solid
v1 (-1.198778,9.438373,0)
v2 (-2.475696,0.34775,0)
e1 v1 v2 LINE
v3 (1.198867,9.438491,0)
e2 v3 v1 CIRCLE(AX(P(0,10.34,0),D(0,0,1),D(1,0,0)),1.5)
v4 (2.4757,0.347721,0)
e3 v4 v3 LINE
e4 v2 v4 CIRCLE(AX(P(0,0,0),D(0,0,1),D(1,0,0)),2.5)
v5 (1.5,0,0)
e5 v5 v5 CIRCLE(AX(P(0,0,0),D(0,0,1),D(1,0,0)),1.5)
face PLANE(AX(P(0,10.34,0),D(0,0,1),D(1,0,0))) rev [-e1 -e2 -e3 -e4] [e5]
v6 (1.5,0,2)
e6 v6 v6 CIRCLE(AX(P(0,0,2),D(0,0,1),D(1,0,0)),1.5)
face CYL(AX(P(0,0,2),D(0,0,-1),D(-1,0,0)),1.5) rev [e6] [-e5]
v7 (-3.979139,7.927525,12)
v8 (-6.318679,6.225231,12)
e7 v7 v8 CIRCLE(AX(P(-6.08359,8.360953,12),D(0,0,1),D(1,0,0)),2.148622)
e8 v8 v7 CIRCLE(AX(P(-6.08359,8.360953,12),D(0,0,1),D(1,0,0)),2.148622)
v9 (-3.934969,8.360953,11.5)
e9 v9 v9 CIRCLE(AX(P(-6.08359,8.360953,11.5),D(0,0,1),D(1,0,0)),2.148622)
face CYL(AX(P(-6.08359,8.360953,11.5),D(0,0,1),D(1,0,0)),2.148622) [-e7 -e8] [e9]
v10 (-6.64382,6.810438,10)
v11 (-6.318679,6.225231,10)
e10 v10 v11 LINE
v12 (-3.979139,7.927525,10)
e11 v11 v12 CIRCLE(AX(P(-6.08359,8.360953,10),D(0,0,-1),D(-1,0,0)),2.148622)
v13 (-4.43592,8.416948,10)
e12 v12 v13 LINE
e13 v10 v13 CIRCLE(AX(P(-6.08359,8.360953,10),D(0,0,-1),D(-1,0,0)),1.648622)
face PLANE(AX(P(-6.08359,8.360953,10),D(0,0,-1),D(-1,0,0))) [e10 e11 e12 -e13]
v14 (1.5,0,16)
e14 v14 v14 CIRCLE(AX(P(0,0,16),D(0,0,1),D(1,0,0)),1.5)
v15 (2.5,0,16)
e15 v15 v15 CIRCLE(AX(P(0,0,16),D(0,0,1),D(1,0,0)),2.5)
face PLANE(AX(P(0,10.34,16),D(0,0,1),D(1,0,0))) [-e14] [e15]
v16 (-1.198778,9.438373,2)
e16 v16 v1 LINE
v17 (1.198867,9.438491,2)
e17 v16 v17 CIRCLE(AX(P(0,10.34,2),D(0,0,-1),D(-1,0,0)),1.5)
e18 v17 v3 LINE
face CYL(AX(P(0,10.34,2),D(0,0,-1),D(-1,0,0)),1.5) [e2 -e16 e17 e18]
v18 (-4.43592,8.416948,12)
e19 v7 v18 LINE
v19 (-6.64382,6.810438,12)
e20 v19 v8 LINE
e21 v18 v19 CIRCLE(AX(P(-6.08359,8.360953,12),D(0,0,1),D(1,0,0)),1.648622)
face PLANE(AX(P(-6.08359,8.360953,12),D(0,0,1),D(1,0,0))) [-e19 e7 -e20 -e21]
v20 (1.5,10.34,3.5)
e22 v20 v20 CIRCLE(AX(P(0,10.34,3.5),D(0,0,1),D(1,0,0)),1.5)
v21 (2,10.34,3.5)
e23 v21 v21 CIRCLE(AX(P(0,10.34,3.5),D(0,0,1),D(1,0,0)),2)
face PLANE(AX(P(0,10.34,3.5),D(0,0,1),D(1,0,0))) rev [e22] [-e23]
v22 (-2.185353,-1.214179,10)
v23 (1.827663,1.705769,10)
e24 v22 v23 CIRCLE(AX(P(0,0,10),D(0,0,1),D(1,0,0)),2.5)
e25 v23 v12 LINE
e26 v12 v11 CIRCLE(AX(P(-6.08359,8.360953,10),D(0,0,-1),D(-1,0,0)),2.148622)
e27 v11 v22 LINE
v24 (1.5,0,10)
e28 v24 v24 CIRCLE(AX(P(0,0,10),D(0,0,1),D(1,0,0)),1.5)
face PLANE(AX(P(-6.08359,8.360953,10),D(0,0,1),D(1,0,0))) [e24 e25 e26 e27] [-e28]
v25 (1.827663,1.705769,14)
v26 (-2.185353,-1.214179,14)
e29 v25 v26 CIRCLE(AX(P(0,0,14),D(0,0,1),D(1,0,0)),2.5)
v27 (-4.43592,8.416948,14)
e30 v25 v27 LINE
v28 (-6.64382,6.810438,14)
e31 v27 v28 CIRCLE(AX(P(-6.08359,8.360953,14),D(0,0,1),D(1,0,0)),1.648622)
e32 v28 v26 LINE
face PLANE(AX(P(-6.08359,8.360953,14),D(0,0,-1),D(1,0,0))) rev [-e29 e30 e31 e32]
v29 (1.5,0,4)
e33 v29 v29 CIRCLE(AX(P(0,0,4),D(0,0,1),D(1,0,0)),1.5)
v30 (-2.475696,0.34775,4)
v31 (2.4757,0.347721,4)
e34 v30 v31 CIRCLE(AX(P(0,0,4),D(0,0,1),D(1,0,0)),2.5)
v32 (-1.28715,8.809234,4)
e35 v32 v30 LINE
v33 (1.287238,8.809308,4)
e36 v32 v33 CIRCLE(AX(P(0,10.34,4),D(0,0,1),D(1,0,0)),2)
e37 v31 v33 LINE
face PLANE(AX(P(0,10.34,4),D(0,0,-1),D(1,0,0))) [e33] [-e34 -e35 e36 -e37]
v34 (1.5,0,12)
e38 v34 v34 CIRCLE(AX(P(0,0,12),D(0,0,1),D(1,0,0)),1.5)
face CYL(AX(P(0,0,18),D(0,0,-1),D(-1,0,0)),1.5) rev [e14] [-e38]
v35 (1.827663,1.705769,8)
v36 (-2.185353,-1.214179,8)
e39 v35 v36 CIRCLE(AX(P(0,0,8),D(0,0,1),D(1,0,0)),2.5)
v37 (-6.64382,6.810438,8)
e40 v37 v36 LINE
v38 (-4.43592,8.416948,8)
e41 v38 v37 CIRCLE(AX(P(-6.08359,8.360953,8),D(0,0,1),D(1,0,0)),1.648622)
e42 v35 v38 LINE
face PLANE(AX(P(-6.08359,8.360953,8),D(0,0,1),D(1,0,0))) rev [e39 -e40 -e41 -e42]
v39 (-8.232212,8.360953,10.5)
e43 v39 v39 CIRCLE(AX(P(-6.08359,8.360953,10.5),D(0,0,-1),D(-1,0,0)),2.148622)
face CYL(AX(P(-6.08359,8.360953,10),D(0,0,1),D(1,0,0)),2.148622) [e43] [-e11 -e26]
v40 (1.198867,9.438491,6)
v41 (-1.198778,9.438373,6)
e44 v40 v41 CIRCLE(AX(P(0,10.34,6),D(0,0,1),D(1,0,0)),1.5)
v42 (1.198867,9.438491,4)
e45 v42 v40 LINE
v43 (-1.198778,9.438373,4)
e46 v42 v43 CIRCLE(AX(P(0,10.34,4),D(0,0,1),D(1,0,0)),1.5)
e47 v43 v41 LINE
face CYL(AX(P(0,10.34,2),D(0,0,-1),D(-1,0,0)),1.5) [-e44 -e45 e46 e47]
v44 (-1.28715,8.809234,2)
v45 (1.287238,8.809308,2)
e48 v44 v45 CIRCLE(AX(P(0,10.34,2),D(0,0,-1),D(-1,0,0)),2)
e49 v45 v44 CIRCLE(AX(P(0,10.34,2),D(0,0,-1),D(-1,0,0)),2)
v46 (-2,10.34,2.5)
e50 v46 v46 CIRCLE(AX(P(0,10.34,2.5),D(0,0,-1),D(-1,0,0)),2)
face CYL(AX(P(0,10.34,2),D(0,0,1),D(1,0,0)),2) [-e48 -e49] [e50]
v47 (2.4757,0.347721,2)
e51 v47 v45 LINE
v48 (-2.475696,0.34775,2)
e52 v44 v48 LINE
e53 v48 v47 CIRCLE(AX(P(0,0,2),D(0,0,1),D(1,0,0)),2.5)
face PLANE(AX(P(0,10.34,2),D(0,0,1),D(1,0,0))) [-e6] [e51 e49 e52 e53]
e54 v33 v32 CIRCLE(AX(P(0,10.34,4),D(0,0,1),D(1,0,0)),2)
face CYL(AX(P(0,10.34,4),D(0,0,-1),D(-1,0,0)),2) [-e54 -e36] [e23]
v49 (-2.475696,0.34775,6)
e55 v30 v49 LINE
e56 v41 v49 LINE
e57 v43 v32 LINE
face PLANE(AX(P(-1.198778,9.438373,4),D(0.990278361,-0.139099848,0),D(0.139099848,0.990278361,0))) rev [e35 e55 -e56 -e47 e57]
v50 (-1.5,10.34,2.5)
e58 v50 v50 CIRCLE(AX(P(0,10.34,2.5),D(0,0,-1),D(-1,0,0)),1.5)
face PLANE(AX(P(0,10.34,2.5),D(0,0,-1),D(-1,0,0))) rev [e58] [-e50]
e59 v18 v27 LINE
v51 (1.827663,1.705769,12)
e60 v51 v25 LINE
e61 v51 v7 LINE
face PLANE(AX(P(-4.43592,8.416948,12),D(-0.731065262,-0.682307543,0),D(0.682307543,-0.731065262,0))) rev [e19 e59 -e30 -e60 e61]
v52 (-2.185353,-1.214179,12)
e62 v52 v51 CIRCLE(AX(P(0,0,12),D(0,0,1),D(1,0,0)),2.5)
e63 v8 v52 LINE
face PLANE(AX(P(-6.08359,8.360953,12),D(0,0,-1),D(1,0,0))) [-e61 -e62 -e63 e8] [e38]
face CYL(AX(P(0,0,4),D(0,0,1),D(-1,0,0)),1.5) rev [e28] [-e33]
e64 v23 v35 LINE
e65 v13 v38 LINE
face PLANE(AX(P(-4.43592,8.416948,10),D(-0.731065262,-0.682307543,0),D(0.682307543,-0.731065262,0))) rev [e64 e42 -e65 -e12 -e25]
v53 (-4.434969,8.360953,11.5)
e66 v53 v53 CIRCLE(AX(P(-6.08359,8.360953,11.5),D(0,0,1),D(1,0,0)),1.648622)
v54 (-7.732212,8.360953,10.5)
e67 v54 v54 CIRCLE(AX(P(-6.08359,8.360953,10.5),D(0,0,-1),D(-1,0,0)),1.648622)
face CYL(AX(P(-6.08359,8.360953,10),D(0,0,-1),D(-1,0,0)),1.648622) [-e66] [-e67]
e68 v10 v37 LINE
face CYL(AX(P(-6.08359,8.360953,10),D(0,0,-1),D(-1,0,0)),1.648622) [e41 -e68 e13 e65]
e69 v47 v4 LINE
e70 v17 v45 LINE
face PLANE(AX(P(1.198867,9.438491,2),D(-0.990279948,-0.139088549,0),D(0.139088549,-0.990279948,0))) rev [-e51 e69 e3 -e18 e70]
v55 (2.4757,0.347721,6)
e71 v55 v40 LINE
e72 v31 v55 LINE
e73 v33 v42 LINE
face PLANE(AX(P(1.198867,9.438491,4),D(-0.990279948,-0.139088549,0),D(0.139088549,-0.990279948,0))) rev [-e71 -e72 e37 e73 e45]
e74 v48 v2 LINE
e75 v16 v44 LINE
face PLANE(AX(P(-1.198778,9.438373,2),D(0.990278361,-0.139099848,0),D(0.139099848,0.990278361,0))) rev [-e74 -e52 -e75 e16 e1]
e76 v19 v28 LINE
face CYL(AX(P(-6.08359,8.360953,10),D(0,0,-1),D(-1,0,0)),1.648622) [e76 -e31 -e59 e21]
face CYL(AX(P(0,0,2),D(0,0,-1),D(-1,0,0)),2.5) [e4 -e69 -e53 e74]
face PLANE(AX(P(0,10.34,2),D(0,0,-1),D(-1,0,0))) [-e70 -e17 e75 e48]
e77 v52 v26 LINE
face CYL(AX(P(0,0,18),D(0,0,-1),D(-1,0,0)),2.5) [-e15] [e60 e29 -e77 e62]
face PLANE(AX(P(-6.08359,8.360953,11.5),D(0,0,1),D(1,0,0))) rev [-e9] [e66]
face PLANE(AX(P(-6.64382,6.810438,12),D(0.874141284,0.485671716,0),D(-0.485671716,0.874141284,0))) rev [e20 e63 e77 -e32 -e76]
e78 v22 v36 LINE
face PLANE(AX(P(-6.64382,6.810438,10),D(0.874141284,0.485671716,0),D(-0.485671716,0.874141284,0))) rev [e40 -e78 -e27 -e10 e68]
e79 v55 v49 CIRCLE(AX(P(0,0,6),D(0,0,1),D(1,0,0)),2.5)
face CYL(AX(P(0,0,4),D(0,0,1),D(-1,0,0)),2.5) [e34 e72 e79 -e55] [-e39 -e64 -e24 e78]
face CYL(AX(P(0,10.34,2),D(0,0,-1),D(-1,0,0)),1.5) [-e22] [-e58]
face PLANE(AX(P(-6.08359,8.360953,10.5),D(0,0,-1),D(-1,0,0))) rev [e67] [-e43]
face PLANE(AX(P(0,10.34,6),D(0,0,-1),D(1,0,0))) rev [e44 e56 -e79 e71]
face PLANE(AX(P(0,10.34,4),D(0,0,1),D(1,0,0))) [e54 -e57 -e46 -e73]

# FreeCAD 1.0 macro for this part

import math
import FreeCAD as App
import Part
import Sketcher
Q = App.Units.Quantity


def add_polygon(sketch, points):
    """Adds a closed chain of lines whose ends are joined by coincident constraints."""
    first, n = sketch.GeometryCount, len(points)
    for a, b in zip(points, points[1:] + points[:1]):
        sketch.addGeometry(Part.LineSegment(App.Vector(*a, 0), App.Vector(*b, 0)), False)
    for i in range(n):
        sketch.addConstraint(Sketcher.Constraint("Coincident", first + i, 2, first + (i + 1) % n, 1))

doc = App.newDocument("Part")
body = doc.addObject("PartDesign::Body", "Body")

sketch1 = doc.addObject("Sketcher::SketchObject", "Sketch")
body.addObject(sketch1)
sketch1.AttachmentSupport = (doc.XY_Plane, [""])
sketch1.MapMode = "FlatFace"
sketch1.addGeometry([
    Part.LineSegment(App.Vector(-1.2, 9.4, 0), App.Vector(-2.5, 0.3, 0)),
    Part.ArcOfCircle(Part.Circle(App.Vector(0, 0, 0), App.Vector(0, 0, 1), 2.5), math.radians(172), math.radians(368)),
    Part.LineSegment(App.Vector(2.5, 0.3, 0), App.Vector(1.2, 9.4, 0)),
    Part.ArcOfCircle(Part.Circle(App.Vector(0, 10.3, 0), App.Vector(0, 0, 1), 1.5), math.radians(-37), math.radians(217)),
    Part.Circle(App.Vector(0, 0, 0), App.Vector(0, 0, 1), 1.5),
], False)
sketch1.addConstraint([
    Sketcher.Constraint("Tangent", 0, 2, 1, 1),
    Sketcher.Constraint("Tangent", 1, 2, 2, 1),
    Sketcher.Constraint("Coincident", 2, 2, 3, 1),
    Sketcher.Constraint("Coincident", 3, 2, 0, 1),
    Sketcher.Constraint("Coincident", 1, 3, -1, 1),
    Sketcher.Constraint("Coincident", 4, 3, -1, 1),
    Sketcher.Constraint("Equal", 3, 4),
    Sketcher.Constraint("PointOnObject", 3, 3, -2),
    Sketcher.Constraint("Diameter", 4, Q("3 mm")),
    Sketcher.Constraint("Radius", 1, Q("2.5 mm")),
    Sketcher.Constraint("Distance", 2, Q("9.18 mm")),
    Sketcher.Constraint("DistanceY", -1, 1, 3, 3, Q("10.34 mm")),
    Sketcher.Constraint("DistanceY", -1, 1, 0, 2, Q("0.34775 mm")),
])
pad1 = doc.addObject("PartDesign::Pad", "Pad")
body.addObject(pad1)
pad1.Profile = sketch1
pad1.Length = 2

sketch2 = doc.addObject("Sketcher::SketchObject", "Sketch001")
body.addObject(sketch2)
sketch2.AttachmentSupport = (doc.XY_Plane, [""])
sketch2.MapMode = "FlatFace"
sketch2.AttachmentOffset = App.Placement(App.Vector(0, 0, 2), App.Rotation())
sketch2.addGeometry(Part.Circle(App.Vector(0, 10.3, 0), App.Vector(0, 0, 1), 1.5), False)
sketch2.addConstraint([
    Sketcher.Constraint("PointOnObject", 0, 3, -2),
    Sketcher.Constraint("Diameter", 0, Q("3 mm")),
    Sketcher.Constraint("DistanceY", -1, 1, 0, 3, Q("10.34 mm")),
])
pad2 = doc.addObject("PartDesign::Pad", "Pad001")
body.addObject(pad2)
pad2.Profile = sketch2
pad2.Length = 1
body2 = doc.addObject("PartDesign::Body", "Body001")
doc.recompute()

body2.BaseFeature = body
doc.recompute()

mirroring = doc.addObject("Part::Mirroring", "Mirroring")
mirroring.Source = body
mirroring.Base = App.Vector(0, 10.34, 3)
mirroring.Normal = App.Vector(0, 0, 1)
body3 = doc.addObject("PartDesign::Body", "Body002")
body3.BaseFeature = mirroring
boolean = doc.addObject("PartDesign::Boolean", "Boolean")
body2.addObject(boolean)
boolean.Type = "Fuse"
boolean.addObjects([body3])
doc.recompute()

sketch3 = doc.addObject("Sketcher::SketchObject", "Sketch002")
body2.addObject(sketch3)
sketch3.AttachmentSupport = (doc.getObject("XY_Plane001"), [""])
sketch3.MapMode = "FlatFace"
sketch3.AttachmentOffset = App.Placement(App.Vector(0, 0, 6), App.Rotation())
sketch3.addGeometry([
    Part.Circle(App.Vector(0, 0, 0), App.Vector(0, 0, 1), 2.5),
    Part.Circle(App.Vector(0, 0, 0), App.Vector(0, 0, 1), 1.5),
], False)
sketch3.addConstraint([
    Sketcher.Constraint("Coincident", 0, 3, -1, 1),
    Sketcher.Constraint("Coincident", 1, 3, -1, 1),
    Sketcher.Constraint("Diameter", 0, Q("5 mm")),
    Sketcher.Constraint("Diameter", 1, Q("3 mm")),
])
pad3 = doc.addObject("PartDesign::Pad", "Pad002")
body2.addObject(pad3)
pad3.Profile = sketch3
pad3.Length = 2

sketch4 = doc.addObject("Sketcher::SketchObject", "Sketch003")
body2.addObject(sketch4)
sketch4.AttachmentSupport = (doc.getObject("XY_Plane001"), [""])
sketch4.MapMode = "FlatFace"
sketch4.AttachmentOffset = App.Placement(App.Vector(0, 0, 8), App.Rotation())
sketch4.addGeometry([
    Part.LineSegment(App.Vector(-6.6, 6.8, 0), App.Vector(-2.2, -1.2, 0)),
    Part.ArcOfCircle(Part.Circle(App.Vector(0, 0, 0), App.Vector(0, 0, 1), 2.5), math.radians(-151), math.radians(43)),
    Part.LineSegment(App.Vector(1.8, 1.7, 0), App.Vector(-4.4, 8.4, 0)),
    Part.ArcOfCircle(Part.Circle(App.Vector(-6.1, 8.4, 0), App.Vector(0, 0, 1), 1.6), math.radians(2), math.radians(250)),
    Part.Circle(App.Vector(0, 0, 0), App.Vector(0, 0, 1), 1.5),
], False)
sketch4.addConstraint([
    Sketcher.Constraint("Tangent", 0, 2, 1, 1),
    Sketcher.Constraint("Tangent", 1, 2, 2, 1),
    Sketcher.Constraint("Coincident", 2, 2, 3, 1),
    Sketcher.Constraint("Coincident", 3, 2, 0, 1),
    Sketcher.Constraint("Coincident", 1, 3, -1, 1),
    Sketcher.Constraint("Coincident", 4, 3, -1, 1),
    Sketcher.Constraint("Equal", 0, 2),
    Sketcher.Constraint("Diameter", 4, Q("3 mm")),
    Sketcher.Constraint("Radius", 1, Q("2.5 mm")),
    Sketcher.Constraint("Distance", 0, Q("9.18 mm")),
    Sketcher.Constraint("Radius", 3, Q("1.648622 mm")),
    Sketcher.Constraint("DistanceX", 3, 2, 2, 2, Q("2.207899 mm")),
    Sketcher.Constraint("DistanceX", 3, 3, -1, 1, Q("6.08359 mm")),
])
pad4 = doc.addObject("PartDesign::Pad", "Pad003")
body2.addObject(pad4)
pad4.Profile = sketch4
pad4.Length = 2

sketch5 = doc.addObject("Sketcher::SketchObject", "Sketch004")
body2.addObject(sketch5)
sketch5.AttachmentSupport = (doc.getObject("XY_Plane001"), [""])
sketch5.MapMode = "FlatFace"
sketch5.AttachmentOffset = App.Placement(App.Vector(0, 0, 10), App.Rotation())
sketch5.addGeometry(Part.Circle(App.Vector(-6.1, 8.4, 0), App.Vector(0, 0, 1), 1.6), False)
sketch5.addConstraint([
    Sketcher.Constraint("Diameter", 0, Q("3.297243 mm")),
    Sketcher.Constraint("DistanceX", 0, 3, -1, 1, Q("6.08359 mm")),
    Sketcher.Constraint("DistanceY", -1, 1, 0, 3, Q("8.360953 mm")),
])
pad5 = doc.addObject("PartDesign::Pad", "Pad004")
body2.addObject(pad5)
pad5.Profile = sketch5
pad5.Length = 1
body4 = doc.addObject("PartDesign::Body", "Body003")
doc.recompute()

body4.BaseFeature = body2
doc.recompute()

mirroring2 = doc.addObject("Part::Mirroring", "Mirroring001")
mirroring2.Source = body2
mirroring2.Base = App.Vector(-6.08359, 8.360953, 11)
mirroring2.Normal = App.Vector(0, 0, 1)
body5 = doc.addObject("PartDesign::Body", "Body004")
body5.BaseFeature = mirroring2
boolean2 = doc.addObject("PartDesign::Boolean", "Boolean001")
body4.addObject(boolean2)
boolean2.Type = "Fuse"
boolean2.addObjects([body5])
doc.recompute()

sketch6 = doc.addObject("Sketcher::SketchObject", "Sketch005")
body4.addObject(sketch6)
sketch6.AttachmentSupport = (doc.getObject("XY_Plane003"), [""])
sketch6.MapMode = "FlatFace"
sketch6.AttachmentOffset = App.Placement(App.Vector(0, 0, 22), App.Rotation())
add_polygon(sketch6, [(-6, 12), (-6, -3), (6, -3), (6, 12)])
sketch6.addConstraint([
    Sketcher.Constraint("Vertical", 0),
    Sketcher.Constraint("Horizontal", 1),
    Sketcher.Constraint("Vertical", 2),
    Sketcher.Constraint("Horizontal", 3),
    Sketcher.Constraint("DistanceX", 1, 1, 1, 2, Q("11.938868 mm")),
    Sketcher.Constraint("DistanceY", 0, 2, 0, 1, Q("15.738508 mm")),
    Sketcher.Constraint("DistanceX", 0, 2, -1, 1, Q("6.235763 mm")),
    Sketcher.Constraint("DistanceY", 0, 2, -1, 1, Q("3.399235 mm")),
])
pocket1 = doc.addObject("PartDesign::Pocket", "Pocket")
body4.addObject(pocket1)
pocket1.Profile = sketch6
pocket1.Length = 6

sketch7 = doc.addObject("Sketcher::SketchObject", "Sketch006")
body4.addObject(sketch7)
sketch7.AttachmentSupport = (doc.getObject("XY_Plane003"), [""])
sketch7.MapMode = "FlatFace"
sketch7.AttachmentOffset = App.Placement(App.Vector(0, 0, 12), App.Rotation())
sketch7.addGeometry(Part.Circle(App.Vector(-6.1, 8.4, 0), App.Vector(0, 0, 1), 2.1), False)
sketch7.addConstraint([
    Sketcher.Constraint("Diameter", 0, Q("4.297243 mm")),
    Sketcher.Constraint("DistanceX", 0, 3, -1, 1, Q("6.08359 mm")),
    Sketcher.Constraint("DistanceY", -1, 1, 0, 3, Q("8.360953 mm")),
])
pad6 = doc.addObject("PartDesign::Pad", "Pad005")
body4.addObject(pad6)
pad6.Profile = sketch7
pad6.Length = 0.5
pad6.Reversed = True

sketch8 = doc.addObject("Sketcher::SketchObject", "Sketch007")
body4.addObject(sketch8)
sketch8.AttachmentSupport = (doc.getObject("XY_Plane003"), [""])
sketch8.MapMode = "FlatFace"
sketch8.AttachmentOffset = App.Placement(App.Vector(0, 0, 10.5), App.Rotation())
sketch8.addGeometry(Part.Circle(App.Vector(-6.1, 8.4, 0), App.Vector(0, 0, 1), 2.1), False)
sketch8.addConstraint([
    Sketcher.Constraint("Diameter", 0, Q("4.297243 mm")),
    Sketcher.Constraint("DistanceX", 0, 3, -1, 1, Q("6.08359 mm")),
    Sketcher.Constraint("DistanceY", -1, 1, 0, 3, Q("8.360953 mm")),
])
pad7 = doc.addObject("PartDesign::Pad", "Pad006")
body4.addObject(pad7)
pad7.Profile = sketch8
pad7.Length = 0.5
pad7.Reversed = True

sketch9 = doc.addObject("Sketcher::SketchObject", "Sketch008")
body4.addObject(sketch9)
sketch9.AttachmentSupport = (doc.getObject("XY_Plane003"), [""])
sketch9.MapMode = "FlatFace"
sketch9.AttachmentOffset = App.Placement(App.Vector(0, 0, 2.5), App.Rotation())
sketch9.addGeometry(Part.Circle(App.Vector(0, 10.3, 0), App.Vector(0, 0, 1), 2), False)
sketch9.addConstraint([
    Sketcher.Constraint("PointOnObject", 0, 3, -2),
    Sketcher.Constraint("Diameter", 0, Q("4 mm")),
    Sketcher.Constraint("DistanceY", -1, 1, 0, 3, Q("10.34 mm")),
])
pad8 = doc.addObject("PartDesign::Pad", "Pad007")
body4.addObject(pad8)
pad8.Profile = sketch9
pad8.Length = 0.5
pad8.Reversed = True

sketch10 = doc.addObject("Sketcher::SketchObject", "Sketch009")
body4.addObject(sketch10)
sketch10.AttachmentSupport = (doc.getObject("XY_Plane003"), [""])
sketch10.MapMode = "FlatFace"
sketch10.AttachmentOffset = App.Placement(App.Vector(0, 0, 4), App.Rotation())
sketch10.addGeometry(Part.Circle(App.Vector(0, 10.3, 0), App.Vector(0, 0, 1), 2), False)
sketch10.addConstraint([
    Sketcher.Constraint("PointOnObject", 0, 3, -2),
    Sketcher.Constraint("Diameter", 0, Q("4 mm")),
    Sketcher.Constraint("DistanceY", -1, 1, 0, 3, Q("10.34 mm")),
])
pad9 = doc.addObject("PartDesign::Pad", "Pad008")
body4.addObject(pad9)
pad9.Profile = sketch10
pad9.Length = 0.5
pad9.Reversed = True
mirroring.Visibility = False
mirroring2.Visibility = False

doc.recompute()
